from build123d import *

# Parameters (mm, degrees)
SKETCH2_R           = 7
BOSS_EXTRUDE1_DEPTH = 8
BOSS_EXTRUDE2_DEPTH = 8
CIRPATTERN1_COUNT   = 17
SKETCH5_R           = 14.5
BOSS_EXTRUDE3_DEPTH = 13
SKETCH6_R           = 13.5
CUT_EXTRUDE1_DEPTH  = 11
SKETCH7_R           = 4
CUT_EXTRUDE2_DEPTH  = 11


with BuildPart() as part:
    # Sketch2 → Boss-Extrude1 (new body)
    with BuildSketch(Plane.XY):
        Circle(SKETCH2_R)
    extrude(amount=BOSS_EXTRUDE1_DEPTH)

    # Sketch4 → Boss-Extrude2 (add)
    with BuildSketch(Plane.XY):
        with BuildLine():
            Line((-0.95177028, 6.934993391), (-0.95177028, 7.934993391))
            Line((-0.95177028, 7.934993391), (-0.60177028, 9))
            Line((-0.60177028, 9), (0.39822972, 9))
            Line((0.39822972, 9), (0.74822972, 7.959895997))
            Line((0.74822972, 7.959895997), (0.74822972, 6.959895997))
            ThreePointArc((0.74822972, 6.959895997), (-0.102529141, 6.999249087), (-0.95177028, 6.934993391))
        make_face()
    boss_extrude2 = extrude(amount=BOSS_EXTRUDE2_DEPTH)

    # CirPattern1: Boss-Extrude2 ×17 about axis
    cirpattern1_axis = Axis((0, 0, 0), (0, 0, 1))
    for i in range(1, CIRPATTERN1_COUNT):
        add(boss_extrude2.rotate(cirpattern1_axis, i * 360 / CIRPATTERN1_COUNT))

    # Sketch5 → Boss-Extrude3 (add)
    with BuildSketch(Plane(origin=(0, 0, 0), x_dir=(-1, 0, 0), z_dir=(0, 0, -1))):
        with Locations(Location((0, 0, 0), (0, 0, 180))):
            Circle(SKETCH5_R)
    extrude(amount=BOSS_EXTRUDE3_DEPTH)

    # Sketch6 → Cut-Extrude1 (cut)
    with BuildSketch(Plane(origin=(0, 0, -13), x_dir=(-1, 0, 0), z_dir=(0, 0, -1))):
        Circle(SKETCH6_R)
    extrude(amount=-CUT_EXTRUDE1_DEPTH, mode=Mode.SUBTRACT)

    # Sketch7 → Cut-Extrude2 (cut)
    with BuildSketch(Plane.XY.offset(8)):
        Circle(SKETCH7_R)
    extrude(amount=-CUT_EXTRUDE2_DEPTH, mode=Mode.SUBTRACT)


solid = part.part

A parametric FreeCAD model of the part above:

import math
import FreeCAD as App
import Part
import Sketcher

V = App.Vector
Q = App.Units.Quantity

doc = App.newDocument("Part")
body = doc.addObject("PartDesign::Body", "Body")

sketch1 = body.newObject("Sketcher::SketchObject", "Sketch")
sketch1.AttachmentSupport = (doc.getObject("XY_Plane"), [""])
sketch1.MapMode = "FlatFace"
sketch1.addGeometry(Part.Circle(V(0, 0, 0), V(0, 0, 1), 7), False)
sketch1.addConstraint([
    Sketcher.Constraint("Coincident", 0, 3, -1, 1),
    Sketcher.Constraint("Diameter", 0, Q("14 mm")),
])
pad1 = body.newObject("PartDesign::Pad", "Pad")
pad1.Profile = sketch1
pad1.Length = 8

sketch2 = body.newObject("Sketcher::SketchObject", "Sketch001")
sketch2.AttachmentSupport = (doc.getObject("XY_Plane"), [""])
sketch2.MapMode = "FlatFace"
sketch2.addGeometry([
    Part.LineSegment(V(-1, 7.9, 0), V(-1, 6.9, 0)),
    Part.ArcOfCircle(Part.Circle(V(0, 0, 0), V(0, 0, 1), 7), math.radians(83.86), math.radians(97.81)),
    Part.LineSegment(V(0.7, 7, 0), V(0.7, 8, 0)),
    Part.LineSegment(V(0.7, 8, 0), V(0.4, 9, 0)),
    Part.LineSegment(V(0.4, 9, 0), V(-0.6, 9, 0)),
    Part.LineSegment(V(-0.6, 9, 0), V(-1, 7.9, 0)),
], False)
sketch2.addConstraint([
    Sketcher.Constraint("Coincident", 0, 2, 1, 2),
    Sketcher.Constraint("Coincident", 1, 1, 2, 1),
    Sketcher.Constraint("Coincident", 2, 2, 3, 1),
    Sketcher.Constraint("Coincident", 3, 2, 4, 1),
    Sketcher.Constraint("Coincident", 4, 2, 5, 1),
    Sketcher.Constraint("Coincident", 5, 2, 0, 1),
    Sketcher.Constraint("Vertical", 0),
    Sketcher.Constraint("Vertical", 2),
    Sketcher.Constraint("Horizontal", 4),
    Sketcher.Constraint("Coincident", 1, 3, -1, 1),
    Sketcher.Constraint("Equal", 4, 0),
    Sketcher.Constraint("Equal", 0, 2),
    Sketcher.Constraint("Radius", 1, Q("7 mm")),
    Sketcher.Constraint("DistanceX", 4, 2, 4, 1, Q("1 mm")),
    Sketcher.Constraint("DistanceY", -1, 1, 3, 2, Q("9 mm")),
    Sketcher.Constraint("DistanceX", 0, 2, 1, 1, Q("1.7 mm")),
    Sketcher.Constraint("DistanceX", 3, 2, 2, 2, Q("0.35 mm")),
    Sketcher.Constraint("DistanceX", 0, 2, -1, 1, Q("0.95177 mm")),
])
pad2 = body.newObject("PartDesign::Pad", "Pad001")
pad2.Profile = sketch2
pad2.Length = 8
doc.recompute()

polarpattern = body.newObject("PartDesign::PolarPattern", "PolarPattern")
polarpattern.Originals = [pad2]
polarpattern.Axis = (doc.getObject("Z_Axis"), [""])
polarpattern.Angle = 360
polarpattern.Occurrences = 17
body.Tip = polarpattern

sketch3 = body.newObject("Sketcher::SketchObject", "Sketch002")
sketch3.AttachmentSupport = (doc.getObject("XY_Plane"), [""])
sketch3.MapMode = "FlatFace"
sketch3.addGeometry(Part.Circle(V(0, 0, 0), V(0, 0, 1), 14), False)
sketch3.addConstraint([
    Sketcher.Constraint("Coincident", 0, 3, -1, 1),
    Sketcher.Constraint("Diameter", 0, Q("29 mm")),
])
pad3 = body.newObject("PartDesign::Pad", "Pad002")
pad3.Profile = sketch3
pad3.Length = 13
pad3.Reversed = True

sketch4 = body.newObject("Sketcher::SketchObject", "Sketch003")
sketch4.AttachmentSupport = (doc.getObject("XY_Plane"), [""])
sketch4.MapMode = "FlatFace"
sketch4.AttachmentOffset = App.Placement(V(0, 0, -13), App.Rotation())
sketch4.addGeometry(Part.Circle(V(0, 0, 0), V(0, 0, 1), 14), False)
sketch4.addConstraint([
    Sketcher.Constraint("Coincident", 0, 3, -1, 1),
    Sketcher.Constraint("Diameter", 0, Q("27 mm")),
])
pocket1 = body.newObject("PartDesign::Pocket", "Pocket")
pocket1.Profile = sketch4
pocket1.Length = 11
pocket1.Reversed = True

sketch5 = body.newObject("Sketcher::SketchObject", "Sketch004")
sketch5.AttachmentSupport = (doc.getObject("XY_Plane"), [""])
sketch5.MapMode = "FlatFace"
sketch5.AttachmentOffset = App.Placement(V(0, 0, 8), App.Rotation())
sketch5.addGeometry(Part.Circle(V(0, 0, 0), V(0, 0, 1), 4), False)
sketch5.addConstraint([
    Sketcher.Constraint("Coincident", 0, 3, -1, 1),
    Sketcher.Constraint("Diameter", 0, Q("8 mm")),
])
pocket2 = body.newObject("PartDesign::Pocket", "Pocket001")
pocket2.Profile = sketch5
pocket2.Length = 11

doc.recompute()
